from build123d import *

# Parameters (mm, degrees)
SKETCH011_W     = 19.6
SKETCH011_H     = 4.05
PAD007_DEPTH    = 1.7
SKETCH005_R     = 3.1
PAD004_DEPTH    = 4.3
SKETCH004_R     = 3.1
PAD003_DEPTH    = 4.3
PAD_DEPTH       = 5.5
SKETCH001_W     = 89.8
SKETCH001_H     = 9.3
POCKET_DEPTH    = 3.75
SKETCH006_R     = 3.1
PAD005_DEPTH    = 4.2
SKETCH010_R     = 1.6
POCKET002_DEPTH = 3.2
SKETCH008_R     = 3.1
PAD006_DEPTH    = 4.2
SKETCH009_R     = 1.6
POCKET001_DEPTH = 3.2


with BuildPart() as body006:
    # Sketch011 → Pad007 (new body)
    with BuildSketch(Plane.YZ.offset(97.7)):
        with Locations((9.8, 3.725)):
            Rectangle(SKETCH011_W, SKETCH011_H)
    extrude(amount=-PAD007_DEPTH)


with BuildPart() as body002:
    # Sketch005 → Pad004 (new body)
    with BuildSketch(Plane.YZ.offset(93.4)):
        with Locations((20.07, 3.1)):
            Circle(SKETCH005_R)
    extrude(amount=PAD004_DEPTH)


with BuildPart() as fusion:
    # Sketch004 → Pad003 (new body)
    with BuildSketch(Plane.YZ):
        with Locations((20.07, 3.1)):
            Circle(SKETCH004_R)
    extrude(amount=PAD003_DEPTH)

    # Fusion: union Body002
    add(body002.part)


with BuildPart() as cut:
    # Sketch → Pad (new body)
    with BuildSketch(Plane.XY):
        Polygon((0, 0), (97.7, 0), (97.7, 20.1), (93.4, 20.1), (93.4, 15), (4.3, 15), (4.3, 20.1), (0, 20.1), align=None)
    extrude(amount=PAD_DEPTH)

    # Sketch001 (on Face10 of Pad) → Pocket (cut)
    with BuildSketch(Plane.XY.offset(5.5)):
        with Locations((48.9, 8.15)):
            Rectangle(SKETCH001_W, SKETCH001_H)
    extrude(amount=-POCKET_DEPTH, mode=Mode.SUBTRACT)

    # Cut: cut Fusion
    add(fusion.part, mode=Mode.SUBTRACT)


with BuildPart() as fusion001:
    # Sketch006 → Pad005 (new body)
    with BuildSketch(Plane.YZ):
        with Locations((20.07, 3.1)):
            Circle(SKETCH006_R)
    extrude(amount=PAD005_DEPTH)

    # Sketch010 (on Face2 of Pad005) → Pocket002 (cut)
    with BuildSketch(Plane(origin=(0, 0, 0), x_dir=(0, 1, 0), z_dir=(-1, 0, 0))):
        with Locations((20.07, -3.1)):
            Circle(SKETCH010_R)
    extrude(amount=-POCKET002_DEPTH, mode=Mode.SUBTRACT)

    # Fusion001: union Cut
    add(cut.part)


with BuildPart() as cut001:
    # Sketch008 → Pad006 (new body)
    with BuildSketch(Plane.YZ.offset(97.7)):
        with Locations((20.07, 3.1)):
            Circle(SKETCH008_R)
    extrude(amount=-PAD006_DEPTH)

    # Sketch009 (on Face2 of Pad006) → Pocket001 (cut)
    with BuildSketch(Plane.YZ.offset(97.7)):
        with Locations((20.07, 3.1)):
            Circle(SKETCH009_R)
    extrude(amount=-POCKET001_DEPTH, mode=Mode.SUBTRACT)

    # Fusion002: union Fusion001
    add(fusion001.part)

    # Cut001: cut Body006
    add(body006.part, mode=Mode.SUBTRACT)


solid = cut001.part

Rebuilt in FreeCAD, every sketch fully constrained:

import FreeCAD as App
import Part
import Sketcher
from FreeCAD import Vector

doc = App.newDocument("Part")
body = doc.addObject("PartDesign::Body", "Body")

sketch1 = doc.addObject("Sketcher::SketchObject", "Sketch")
body.addObject(sketch1)
sketch1.AttachmentSupport = (doc.YZ_Plane, [""])
sketch1.MapMode = "FlatFace"
sketch1.AttachmentOffset = App.Placement(Vector(0, 0, 97.7), App.Rotation())
sketch1.addGeometry(Part.LineSegment(Vector(0, 5.75, 0), Vector(0, 1.7, 0)), False)
sketch1.addGeometry(Part.LineSegment(Vector(0, 1.7, 0), Vector(19.6, 1.7, 0)), False)
sketch1.addGeometry(Part.LineSegment(Vector(19.6, 1.7, 0), Vector(19.6, 5.75, 0)), False)
sketch1.addGeometry(Part.LineSegment(Vector(19.6, 5.75, 0), Vector(0, 5.75, 0)), False)
sketch1.addConstraint(Sketcher.Constraint("Coincident", 0, 2, 1, 1))
sketch1.addConstraint(Sketcher.Constraint("Coincident", 1, 2, 2, 1))
sketch1.addConstraint(Sketcher.Constraint("Coincident", 2, 2, 3, 1))
sketch1.addConstraint(Sketcher.Constraint("Coincident", 3, 2, 0, 1))
sketch1.addConstraint(Sketcher.Constraint("Vertical", 0))
sketch1.addConstraint(Sketcher.Constraint("Horizontal", 1))
sketch1.addConstraint(Sketcher.Constraint("Vertical", 2))
sketch1.addConstraint(Sketcher.Constraint("Horizontal", 3))
sketch1.addConstraint(Sketcher.Constraint("PointOnObject", 0, 2, -2))
sketch1.addConstraint(Sketcher.Constraint("DistanceX", 1, 1, 1, 2, 19.6))
sketch1.addConstraint(Sketcher.Constraint("DistanceY", 0, 2, 0, 1, 4.05))
sketch1.addConstraint(Sketcher.Constraint("DistanceY", -1, 1, 0, 2, 1.7))
pad1 = doc.addObject("PartDesign::Pad", "Pad")
body.addObject(pad1)
pad1.Profile = sketch1
pad1.Length = 1.7
pad1.Reversed = True
body2 = doc.addObject("PartDesign::Body", "Body001")

sketch2 = doc.addObject("Sketcher::SketchObject", "Sketch001")
body2.addObject(sketch2)
sketch2.AttachmentSupport = (doc.getObject("YZ_Plane001"), [""])
sketch2.MapMode = "FlatFace"
sketch2.AttachmentOffset = App.Placement(Vector(0, 0, 93.4), App.Rotation())
sketch2.addGeometry(Part.Circle(Vector(20.07, 3.1, 0), Vector(0, 0, 1), 3.1), False)
sketch2.addConstraint(Sketcher.Constraint("Diameter", 0, 6.2))
sketch2.addConstraint(Sketcher.Constraint("DistanceY", -1, 1, 0, 3, 3.1))
sketch2.addConstraint(Sketcher.Constraint("DistanceX", -1, 1, 0, 3, 20.07))
pad2 = doc.addObject("PartDesign::Pad", "Pad001")
body2.addObject(pad2)
pad2.Profile = sketch2
pad2.Length = 4.3
body3 = doc.addObject("PartDesign::Body", "Body002")
body3.AllowCompound = True

sketch3 = doc.addObject("Sketcher::SketchObject", "Sketch002")
body3.addObject(sketch3)
sketch3.AttachmentSupport = (doc.getObject("YZ_Plane002"), [""])
sketch3.MapMode = "FlatFace"
sketch3.addGeometry(Part.Circle(Vector(20.07, 3.1, 0), Vector(0, 0, 1), 3.1), False)
sketch3.addConstraint(Sketcher.Constraint("Diameter", 0, 6.2))
sketch3.addConstraint(Sketcher.Constraint("DistanceY", -1, 1, 0, 3, 3.1))
sketch3.addConstraint(Sketcher.Constraint("DistanceX", -1, 1, 0, 3, 20.07))
pad3 = doc.addObject("PartDesign::Pad", "Pad002")
body3.addObject(pad3)
pad3.Profile = sketch3
pad3.Length = 4.3
doc.recompute()

boolean = doc.addObject("PartDesign::Boolean", "Boolean")
body3.addObject(boolean)
boolean.Type = "Fuse"
boolean.addObjects([body2])
body4 = doc.addObject("PartDesign::Body", "Body003")
body4.AllowCompound = True

sketch4 = doc.addObject("Sketcher::SketchObject", "Sketch003")
body4.addObject(sketch4)
sketch4.AttachmentSupport = (doc.getObject("XY_Plane003"), [""])
sketch4.MapMode = "FlatFace"
sketch4.addGeometry(Part.LineSegment(Vector(0, 0, 0), Vector(97.7, 0, 0)), False)
sketch4.addGeometry(Part.LineSegment(Vector(97.7, 0, 0), Vector(97.7, 20.1, 0)), False)
sketch4.addGeometry(Part.LineSegment(Vector(97.7, 20.1, 0), Vector(93.4, 20.1, 0)), False)
sketch4.addGeometry(Part.LineSegment(Vector(93.4, 20.1, 0), Vector(93.4, 15, 0)), False)
sketch4.addGeometry(Part.LineSegment(Vector(93.4, 15, 0), Vector(4.3, 15, 0)), False)
sketch4.addGeometry(Part.LineSegment(Vector(4.3, 15, 0), Vector(4.3, 20.1, 0)), False)
sketch4.addGeometry(Part.LineSegment(Vector(4.3, 20.1, 0), Vector(0, 20.1, 0)), False)
sketch4.addGeometry(Part.LineSegment(Vector(0, 20.1, 0), Vector(0, 0, 0)), False)
sketch4.addConstraint(Sketcher.Constraint("Coincident", 0, 2, 1, 1))
sketch4.addConstraint(Sketcher.Constraint("Coincident", 1, 2, 2, 1))
sketch4.addConstraint(Sketcher.Constraint("Coincident", 2, 2, 3, 1))
sketch4.addConstraint(Sketcher.Constraint("Coincident", 3, 2, 4, 1))
sketch4.addConstraint(Sketcher.Constraint("Coincident", 4, 2, 5, 1))
sketch4.addConstraint(Sketcher.Constraint("Coincident", 5, 2, 6, 1))
sketch4.addConstraint(Sketcher.Constraint("Coincident", 6, 2, 7, 1))
sketch4.addConstraint(Sketcher.Constraint("Coincident", 7, 2, 0, 1))
sketch4.addConstraint(Sketcher.Constraint("Horizontal", 0))
sketch4.addConstraint(Sketcher.Constraint("Vertical", 1))
sketch4.addConstraint(Sketcher.Constraint("Horizontal", 2))
sketch4.addConstraint(Sketcher.Constraint("Vertical", 3))
sketch4.addConstraint(Sketcher.Constraint("Horizontal", 4))
sketch4.addConstraint(Sketcher.Constraint("Vertical", 5))
sketch4.addConstraint(Sketcher.Constraint("Horizontal", 6))
sketch4.addConstraint(Sketcher.Constraint("Vertical", 7))
sketch4.addConstraint(Sketcher.Constraint("Coincident", 7, 2, -1, 1))
sketch4.addConstraint(Sketcher.Constraint("Horizontal", 2, 2, 5, 2))
sketch4.addConstraint(Sketcher.Constraint("Equal", 2, 6))
sketch4.addConstraint(Sketcher.Constraint("DistanceX", 0, 1, 0, 2, 97.7))
sketch4.addConstraint(Sketcher.Constraint("DistanceX", 2, 2, 2, 1, 4.3))
sketch4.addConstraint(Sketcher.Constraint("DistanceY", 1, 1, 1, 2, 20.1))
sketch4.addConstraint(Sketcher.Constraint("DistanceY", 3, 2, 3, 1, 5.1))
pad4 = doc.addObject("PartDesign::Pad", "Pad003")
body4.addObject(pad4)
pad4.Profile = sketch4
pad4.Length = 5.5

sketch5 = doc.addObject("Sketcher::SketchObject", "Sketch004")
body4.addObject(sketch5)
sketch5.AttachmentSupport = (doc.getObject("XY_Plane003"), [""])
sketch5.MapMode = "FlatFace"
sketch5.AttachmentOffset = App.Placement(Vector(0, 0, 5.5), App.Rotation())
sketch5.addGeometry(Part.LineSegment(Vector(4, 12.8, 0), Vector(4, 3.5, 0)), False)
sketch5.addGeometry(Part.LineSegment(Vector(4, 3.5, 0), Vector(93.8, 3.5, 0)), False)
sketch5.addGeometry(Part.LineSegment(Vector(93.8, 3.5, 0), Vector(93.8, 12.8, 0)), False)
sketch5.addGeometry(Part.LineSegment(Vector(93.8, 12.8, 0), Vector(4, 12.8, 0)), False)
sketch5.addConstraint(Sketcher.Constraint("Coincident", 0, 2, 1, 1))
sketch5.addConstraint(Sketcher.Constraint("Coincident", 1, 2, 2, 1))
sketch5.addConstraint(Sketcher.Constraint("Coincident", 2, 2, 3, 1))
sketch5.addConstraint(Sketcher.Constraint("Coincident", 3, 2, 0, 1))
sketch5.addConstraint(Sketcher.Constraint("Vertical", 0))
sketch5.addConstraint(Sketcher.Constraint("Horizontal", 1))
sketch5.addConstraint(Sketcher.Constraint("Vertical", 2))
sketch5.addConstraint(Sketcher.Constraint("Horizontal", 3))
sketch5.addConstraint(Sketcher.Constraint("DistanceX", 1, 1, 1, 2, 89.8))
sketch5.addConstraint(Sketcher.Constraint("DistanceY", 0, 2, 0, 1, 9.3))
sketch5.addConstraint(Sketcher.Constraint("DistanceX", -1, 1, 0, 2, 4.0))
sketch5.addConstraint(Sketcher.Constraint("DistanceY", -1, 1, 0, 2, 3.5))
pocket1 = doc.addObject("PartDesign::Pocket", "Pocket")
body4.addObject(pocket1)
pocket1.Profile = sketch5
pocket1.Length = 3.75
doc.recompute()

boolean2 = doc.addObject("PartDesign::Boolean", "Boolean001")
body4.addObject(boolean2)
boolean2.Type = "Cut"
boolean2.addObjects([body3])
body5 = doc.addObject("PartDesign::Body", "Body004")
body5.AllowCompound = True

sketch6 = doc.addObject("Sketcher::SketchObject", "Sketch005")
body5.addObject(sketch6)
sketch6.AttachmentSupport = (doc.getObject("YZ_Plane004"), [""])
sketch6.MapMode = "FlatFace"
sketch6.addGeometry(Part.Circle(Vector(20.07, 3.1, 0), Vector(0, 0, 1), 3.1), False)
sketch6.addConstraint(Sketcher.Constraint("Diameter", 0, 6.2))
sketch6.addConstraint(Sketcher.Constraint("DistanceY", -1, 1, 0, 3, 3.1))
sketch6.addConstraint(Sketcher.Constraint("DistanceX", -1, 1, 0, 3, 20.07))
pad5 = doc.addObject("PartDesign::Pad", "Pad004")
body5.addObject(pad5)
pad5.Profile = sketch6
pad5.Length = 4.2

sketch7 = doc.addObject("Sketcher::SketchObject", "Sketch006")
body5.addObject(sketch7)
sketch7.AttachmentSupport = (doc.getObject("YZ_Plane004"), [""])
sketch7.MapMode = "FlatFace"
sketch7.addGeometry(Part.Circle(Vector(20.07, 3.1, 0), Vector(0, 0, 1), 1.6), False)
sketch7.addConstraint(Sketcher.Constraint("Diameter", 0, 3.2))
sketch7.addConstraint(Sketcher.Constraint("DistanceY", -1, 1, 0, 3, 3.1))
sketch7.addConstraint(Sketcher.Constraint("DistanceX", -1, 1, 0, 3, 20.07))
pocket2 = doc.addObject("PartDesign::Pocket", "Pocket001")
body5.addObject(pocket2)
pocket2.Profile = sketch7
pocket2.Length = 3.2
pocket2.Reversed = True
doc.recompute()

boolean3 = doc.addObject("PartDesign::Boolean", "Boolean002")
body5.addObject(boolean3)
boolean3.Type = "Fuse"
boolean3.addObjects([body4])
body6 = doc.addObject("PartDesign::Body", "Body005")

sketch8 = doc.addObject("Sketcher::SketchObject", "Sketch007")
body6.addObject(sketch8)
sketch8.AttachmentSupport = (doc.getObject("YZ_Plane005"), [""])
sketch8.MapMode = "FlatFace"
sketch8.AttachmentOffset = App.Placement(Vector(0, 0, 97.7), App.Rotation())
sketch8.addGeometry(Part.Circle(Vector(20.07, 3.1, 0), Vector(0, 0, 1), 3.1), False)
sketch8.addConstraint(Sketcher.Constraint("Diameter", 0, 6.2))
sketch8.addConstraint(Sketcher.Constraint("DistanceY", -1, 1, 0, 3, 3.1))
sketch8.addConstraint(Sketcher.Constraint("DistanceX", -1, 1, 0, 3, 20.07))
pad6 = doc.addObject("PartDesign::Pad", "Pad005")
body6.addObject(pad6)
pad6.Profile = sketch8
pad6.Length = 4.2
pad6.Reversed = True

sketch9 = doc.addObject("Sketcher::SketchObject", "Sketch008")
body6.addObject(sketch9)
sketch9.AttachmentSupport = (doc.getObject("YZ_Plane005"), [""])
sketch9.MapMode = "FlatFace"
sketch9.AttachmentOffset = App.Placement(Vector(0, 0, 97.7), App.Rotation())
sketch9.addGeometry(Part.Circle(Vector(20.07, 3.1, 0), Vector(0, 0, 1), 1.6), False)
sketch9.addConstraint(Sketcher.Constraint("Diameter", 0, 3.2))
sketch9.addConstraint(Sketcher.Constraint("DistanceY", -1, 1, 0, 3, 3.1))
sketch9.addConstraint(Sketcher.Constraint("DistanceX", -1, 1, 0, 3, 20.07))
pocket3 = doc.addObject("PartDesign::Pocket", "Pocket002")
body6.addObject(pocket3)
pocket3.Profile = sketch9
pocket3.Length = 3.2
doc.recompute()

boolean4 = doc.addObject("PartDesign::Boolean", "Boolean003")
body6.addObject(boolean4)
boolean4.Type = "Fuse"
boolean4.addObjects([body5])
doc.recompute()

boolean5 = doc.addObject("PartDesign::Boolean", "Boolean004")
body6.addObject(boolean5)
boolean5.Type = "Cut"
boolean5.addObjects([body])

doc.recompute()
